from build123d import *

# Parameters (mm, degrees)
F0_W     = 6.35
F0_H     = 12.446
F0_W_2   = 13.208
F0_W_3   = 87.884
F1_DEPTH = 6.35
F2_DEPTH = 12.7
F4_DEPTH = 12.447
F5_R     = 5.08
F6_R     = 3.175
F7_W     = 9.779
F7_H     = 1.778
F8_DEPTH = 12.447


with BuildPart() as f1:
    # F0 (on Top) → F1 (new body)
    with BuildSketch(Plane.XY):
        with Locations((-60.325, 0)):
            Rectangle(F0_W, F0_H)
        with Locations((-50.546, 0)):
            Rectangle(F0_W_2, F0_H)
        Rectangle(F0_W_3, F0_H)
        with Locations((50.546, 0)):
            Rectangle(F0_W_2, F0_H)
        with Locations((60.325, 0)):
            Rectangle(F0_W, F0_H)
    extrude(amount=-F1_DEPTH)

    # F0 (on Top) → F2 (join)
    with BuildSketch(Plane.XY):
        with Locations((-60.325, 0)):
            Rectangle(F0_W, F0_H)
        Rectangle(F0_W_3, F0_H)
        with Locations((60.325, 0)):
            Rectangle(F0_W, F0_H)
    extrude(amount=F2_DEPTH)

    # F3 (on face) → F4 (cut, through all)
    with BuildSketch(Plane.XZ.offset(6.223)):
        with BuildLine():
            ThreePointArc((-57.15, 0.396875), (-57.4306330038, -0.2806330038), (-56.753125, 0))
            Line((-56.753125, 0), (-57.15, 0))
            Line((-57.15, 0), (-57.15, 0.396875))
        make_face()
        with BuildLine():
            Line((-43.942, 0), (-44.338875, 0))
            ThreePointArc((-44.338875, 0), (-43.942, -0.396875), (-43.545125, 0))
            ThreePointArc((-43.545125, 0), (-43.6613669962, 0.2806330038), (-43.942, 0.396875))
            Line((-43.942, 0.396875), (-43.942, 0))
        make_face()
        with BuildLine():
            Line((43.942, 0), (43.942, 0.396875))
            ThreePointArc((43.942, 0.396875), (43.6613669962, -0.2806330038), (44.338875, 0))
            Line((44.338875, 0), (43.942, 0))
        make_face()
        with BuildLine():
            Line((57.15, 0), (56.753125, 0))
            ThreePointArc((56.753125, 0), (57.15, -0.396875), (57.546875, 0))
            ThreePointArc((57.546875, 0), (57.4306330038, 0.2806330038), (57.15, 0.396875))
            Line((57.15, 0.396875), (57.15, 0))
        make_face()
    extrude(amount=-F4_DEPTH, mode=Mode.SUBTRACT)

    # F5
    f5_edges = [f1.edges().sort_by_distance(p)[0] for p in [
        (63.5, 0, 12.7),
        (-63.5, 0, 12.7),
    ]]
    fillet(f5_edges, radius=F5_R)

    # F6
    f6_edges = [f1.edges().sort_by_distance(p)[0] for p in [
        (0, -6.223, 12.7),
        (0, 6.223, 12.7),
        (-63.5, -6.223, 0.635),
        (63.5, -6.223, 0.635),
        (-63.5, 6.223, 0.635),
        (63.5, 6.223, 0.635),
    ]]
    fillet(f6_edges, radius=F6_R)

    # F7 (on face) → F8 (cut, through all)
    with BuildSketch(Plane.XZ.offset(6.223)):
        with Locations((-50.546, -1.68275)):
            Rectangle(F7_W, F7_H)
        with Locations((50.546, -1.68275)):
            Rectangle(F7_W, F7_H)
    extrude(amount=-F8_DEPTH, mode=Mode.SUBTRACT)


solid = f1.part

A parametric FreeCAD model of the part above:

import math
import FreeCAD as App
import Part
import Sketcher
from FreeCAD import Vector
Q = App.Units.Quantity


def edges_at(feature, points):
    """Names of the edges that pass closest to the given points."""
    edges = feature.Shape.Edges
    near = lambda p: min(range(len(edges)), key=lambda i: edges[i].distToShape(Part.Vertex(*p))[0])
    return sorted({f"Edge{near(p) + 1}" for p in points})


def add_polygon(sketch, points):
    """Adds a closed chain of lines whose ends are joined by coincident constraints."""
    first, n = sketch.GeometryCount, len(points)
    for a, b in zip(points, points[1:] + points[:1]):
        sketch.addGeometry(Part.LineSegment(App.Vector(*a, 0), App.Vector(*b, 0)), False)
    for i in range(n):
        sketch.addConstraint(Sketcher.Constraint("Coincident", first + i, 2, first + (i + 1) % n, 1))

doc = App.newDocument("Part")
body = doc.addObject("PartDesign::Body", "Body")

# Sketch on XY plane
sketch1 = body.newObject("Sketcher::SketchObject", "Sketch")
sketch1.AttachmentSupport = (doc.getObject("XY_Plane"), [""])
sketch1.MapMode = "FlatFace"
add_polygon(sketch1, [(-64, 6), (-64, -6), (64, -6), (64, 6)])  # lines 0-3
sketch1.addConstraint([
    Sketcher.Constraint("Vertical", 0),
    Sketcher.Constraint("Horizontal", 1),
    Sketcher.Constraint("Vertical", 2),
    Sketcher.Constraint("Horizontal", 3),
    Sketcher.Constraint("Symmetric", 0, 2, 2, 2, -1, 1),
    Sketcher.Constraint("DistanceX", 1, 1, 1, 2, Q("5 in")),
    Sketcher.Constraint("DistanceY", 0, 2, 0, 1, Q("0.49 in")),
])
pad1 = body.newObject("PartDesign::Pad", "Pad")
pad1.Profile = sketch1
pad1.Length = Q("0.25 in")
pad1.Reversed = True

# Sketch on XY plane
sketch2 = body.newObject("Sketcher::SketchObject", "Sketch001")
sketch2.AttachmentSupport = (doc.getObject("XY_Plane"), [""])
sketch2.MapMode = "FlatFace"
add_polygon(sketch2, [(-64, 6), (-64, -6), (-57, -6), (-57, 6)])  # lines 0-3
add_polygon(sketch2, [(-44, 6), (-44, -6), (44, -6), (44, 6)])  # lines 4-7
add_polygon(sketch2, [(57, 6), (57, -6), (64, -6), (64, 6)])  # lines 8-11
sketch2.addConstraint([
    Sketcher.Constraint("Vertical", 0),
    Sketcher.Constraint("Horizontal", 1),
    Sketcher.Constraint("Vertical", 2),
    Sketcher.Constraint("Horizontal", 3),
    Sketcher.Constraint("Vertical", 4),
    Sketcher.Constraint("Horizontal", 5),
    Sketcher.Constraint("Vertical", 6),
    Sketcher.Constraint("Horizontal", 7),
    Sketcher.Constraint("Vertical", 8),
    Sketcher.Constraint("Horizontal", 9),
    Sketcher.Constraint("Vertical", 10),
    Sketcher.Constraint("Horizontal", 11),
    Sketcher.Constraint("Symmetric", 4, 2, 6, 2, -1, 1),
    Sketcher.Constraint("Symmetric", 2, 2, 8, 2, -1, 1),
    Sketcher.Constraint("Symmetric", 0, 2, 10, 2, -1, 1),
    Sketcher.Constraint("Horizontal", 1, 2, 4, 2),
    Sketcher.Constraint("Horizontal", 3, 2, 6, 2),
    Sketcher.Constraint("DistanceX", 1, 1, 1, 2, Q("0.25 in")),
    Sketcher.Constraint("DistanceX", 5, 1, 5, 2, Q("3.46 in")),
    Sketcher.Constraint("DistanceY", 0, 2, 0, 1, Q("0.49 in")),
    Sketcher.Constraint("DistanceX", 0, 2, -1, 1, Q("2.5 in")),
])
pad2 = body.newObject("PartDesign::Pad", "Pad001")
pad2.Profile = sketch2
pad2.Length = Q("0.5 in")

# Sketch on XZ plane
sketch3 = body.newObject("Sketcher::SketchObject", "Sketch002")
sketch3.AttachmentSupport = (doc.getObject("XZ_Plane"), [""])
sketch3.MapMode = "FlatFace"
sketch3.AttachmentOffset = App.Placement(Vector(0, 0, 0.245 * 25.4), App.Rotation())
sketch3.addGeometry([
    Part.ArcOfCircle(Part.Circle(Vector(-57.15, 0, 0), Vector(0, 0, 1), 0.4), math.radians(90), math.radians(360)),  # 0
    Part.LineSegment(Vector(-56.75, 0, 0), Vector(-57.15, 0, 0)),  # 1
    Part.LineSegment(Vector(-57.15, 0, 0), Vector(-57.15, 0.4, 0)),  # 2
    Part.LineSegment(Vector(-43.94, 0, 0), Vector(-44.34, 0, 0)),  # 3
    Part.ArcOfCircle(Part.Circle(Vector(-43.94, 0, 0), Vector(0, 0, 1), 0.4), math.radians(180), math.radians(360)),  # 4
    Part.ArcOfCircle(Part.Circle(Vector(-43.94, 0, 0), Vector(0, 0, 1), 0.4), math.radians(0), math.radians(90)),  # 5
    Part.LineSegment(Vector(-43.94, 0.4, 0), Vector(-43.94, 0, 0)),  # 6
    Part.LineSegment(Vector(43.94, 0, 0), Vector(43.94, 0.4, 0)),  # 7
    Part.ArcOfCircle(Part.Circle(Vector(43.94, 0, 0), Vector(0, 0, 1), 0.4), math.radians(90), math.radians(360)),  # 8
    Part.LineSegment(Vector(44.34, 0, 0), Vector(43.94, 0, 0)),  # 9
    Part.LineSegment(Vector(57.15, 0, 0), Vector(56.75, 0, 0)),  # 10
    Part.ArcOfCircle(Part.Circle(Vector(57.15, 0, 0), Vector(0, 0, 1), 0.4), math.radians(180), math.radians(360)),  # 11
    Part.ArcOfCircle(Part.Circle(Vector(57.15, 0, 0), Vector(0, 0, 1), 0.4), math.radians(0), math.radians(90)),  # 12
    Part.LineSegment(Vector(57.15, 0.4, 0), Vector(57.15, 0, 0)),  # 13
], False)
sketch3.addConstraint([
    Sketcher.Constraint("Coincident", 0, 2, 1, 1),
    Sketcher.Constraint("Coincident", 1, 2, 2, 1),
    Sketcher.Constraint("Coincident", 2, 2, 0, 1),
    Sketcher.Constraint("Coincident", 3, 2, 4, 1),
    Sketcher.Constraint("Tangent", 4, 2, 5, 1),
    Sketcher.Constraint("Coincident", 5, 2, 6, 1),
    Sketcher.Constraint("Coincident", 6, 2, 3, 1),
    Sketcher.Constraint("Coincident", 7, 2, 8, 1),
    Sketcher.Constraint("Coincident", 8, 2, 9, 1),
    Sketcher.Constraint("Coincident", 9, 2, 7, 1),
    Sketcher.Constraint("Coincident", 10, 2, 11, 1),
    Sketcher.Constraint("Tangent", 11, 2, 12, 1),
    Sketcher.Constraint("Coincident", 12, 2, 13, 1),
    Sketcher.Constraint("Coincident", 13, 2, 10, 1),
    Sketcher.Constraint("Horizontal", 1),
    Sketcher.Constraint("Vertical", 2),
    Sketcher.Constraint("Horizontal", 3),
    Sketcher.Constraint("Vertical", 6),
    Sketcher.Constraint("Vertical", 7),
    Sketcher.Constraint("Horizontal", 9),
    Sketcher.Constraint("Horizontal", 10),
    Sketcher.Constraint("Vertical", 13),
    Sketcher.Constraint("Coincident", 1, 2, 0, 3),
    Sketcher.Constraint("Coincident", 6, 2, 4, 3),
    Sketcher.Constraint("Coincident", 9, 2, 8, 3),
    Sketcher.Constraint("Coincident", 13, 2, 11, 3),
    Sketcher.Constraint("Equal", 0, 4),
    Sketcher.Constraint("Equal", 4, 5),
    Sketcher.Constraint("Equal", 5, 8),
    Sketcher.Constraint("Equal", 8, 11),
    Sketcher.Constraint("Equal", 11, 12),
    Sketcher.Constraint("Symmetric", 4, 3, 8, 3, -1, 1),
    Sketcher.Constraint("Symmetric", 0, 3, 11, 3, -1, 1),
    Sketcher.Constraint("PointOnObject", 0, 3, -1),
    Sketcher.Constraint("PointOnObject", 4, 3, -1),
    Sketcher.Constraint("PointOnObject", 4, 2, -1),
    Sketcher.Constraint("PointOnObject", 11, 2, -1),
    Sketcher.Constraint("Radius", 0, Q("0.015625 in")),
    Sketcher.Constraint("DistanceX", 0, 3, 11, 3, Q("4.5 in")),
    Sketcher.Constraint("DistanceX", 4, 3, -1, 1, Q("1.73 in")),
])
pocket1 = body.newObject("PartDesign::Pocket", "Pocket")
pocket1.Profile = sketch3
pocket1.Type = "ThroughAll"
doc.recompute()

fillet = body.newObject("PartDesign::Fillet", "Fillet")
fillet.Base = (pocket1, edges_at(pocket1, [(63.5, 0, 12.7), (-63.5, 0, 12.7)]))
fillet.Radius = Q("0.2 in")
doc.recompute()

fillet2 = body.newObject("PartDesign::Fillet", "Fillet001")
fillet2.Base = (fillet, edges_at(fillet, [
    (0, -6.223, 12.7),
    (0, 6.223, 12.7),
    (-63.5, -6.223, 0.635),
    (63.5, -6.223, 0.635),
    (-63.5, 6.223, 0.635),
    (63.5, 6.223, 0.635),
]))
fillet2.Radius = Q("0.125 in")

# Sketch on XZ plane
sketch4 = body.newObject("Sketcher::SketchObject", "Sketch003")
sketch4.AttachmentSupport = (doc.getObject("XZ_Plane"), [""])
sketch4.MapMode = "FlatFace"
sketch4.AttachmentOffset = App.Placement(Vector(0, 0, 0.245 * 25.4), App.Rotation())
add_polygon(sketch4, [(-55.4, -0.8), (-55.4, -2.6), (-45.7, -2.6), (-45.7, -0.8)])  # lines 0-3
add_polygon(sketch4, [(45.7, -0.8), (45.7, -2.6), (55.4, -2.6), (55.4, -0.8)])  # lines 4-7
sketch4.addConstraint([
    Sketcher.Constraint("Vertical", 0),
    Sketcher.Constraint("Horizontal", 1),
    Sketcher.Constraint("Vertical", 2),
    Sketcher.Constraint("Horizontal", 3),
    Sketcher.Constraint("Vertical", 4),
    Sketcher.Constraint("Horizontal", 5),
    Sketcher.Constraint("Vertical", 6),
    Sketcher.Constraint("Horizontal", 7),
    Sketcher.Constraint("Symmetric", 1, 2, 4, 2, -2),
    Sketcher.Constraint("Symmetric", 3, 2, 6, 2, -2),
    Sketcher.Constraint("DistanceY", 0, 2, 0, 1, Q("0.07 in")),
    Sketcher.Constraint("DistanceX", 1, 1, 1, 2, Q("0.385 in")),
    Sketcher.Constraint("DistanceX", 0, 2, 4, 2, Q("3.98 in")),
    Sketcher.Constraint("DistanceY", 2, 2, -1, 1, Q("0.03125 in")),
])
pocket2 = body.newObject("PartDesign::Pocket", "Pocket001")
pocket2.Profile = sketch4
pocket2.Type = "ThroughAll"

doc.recompute()
